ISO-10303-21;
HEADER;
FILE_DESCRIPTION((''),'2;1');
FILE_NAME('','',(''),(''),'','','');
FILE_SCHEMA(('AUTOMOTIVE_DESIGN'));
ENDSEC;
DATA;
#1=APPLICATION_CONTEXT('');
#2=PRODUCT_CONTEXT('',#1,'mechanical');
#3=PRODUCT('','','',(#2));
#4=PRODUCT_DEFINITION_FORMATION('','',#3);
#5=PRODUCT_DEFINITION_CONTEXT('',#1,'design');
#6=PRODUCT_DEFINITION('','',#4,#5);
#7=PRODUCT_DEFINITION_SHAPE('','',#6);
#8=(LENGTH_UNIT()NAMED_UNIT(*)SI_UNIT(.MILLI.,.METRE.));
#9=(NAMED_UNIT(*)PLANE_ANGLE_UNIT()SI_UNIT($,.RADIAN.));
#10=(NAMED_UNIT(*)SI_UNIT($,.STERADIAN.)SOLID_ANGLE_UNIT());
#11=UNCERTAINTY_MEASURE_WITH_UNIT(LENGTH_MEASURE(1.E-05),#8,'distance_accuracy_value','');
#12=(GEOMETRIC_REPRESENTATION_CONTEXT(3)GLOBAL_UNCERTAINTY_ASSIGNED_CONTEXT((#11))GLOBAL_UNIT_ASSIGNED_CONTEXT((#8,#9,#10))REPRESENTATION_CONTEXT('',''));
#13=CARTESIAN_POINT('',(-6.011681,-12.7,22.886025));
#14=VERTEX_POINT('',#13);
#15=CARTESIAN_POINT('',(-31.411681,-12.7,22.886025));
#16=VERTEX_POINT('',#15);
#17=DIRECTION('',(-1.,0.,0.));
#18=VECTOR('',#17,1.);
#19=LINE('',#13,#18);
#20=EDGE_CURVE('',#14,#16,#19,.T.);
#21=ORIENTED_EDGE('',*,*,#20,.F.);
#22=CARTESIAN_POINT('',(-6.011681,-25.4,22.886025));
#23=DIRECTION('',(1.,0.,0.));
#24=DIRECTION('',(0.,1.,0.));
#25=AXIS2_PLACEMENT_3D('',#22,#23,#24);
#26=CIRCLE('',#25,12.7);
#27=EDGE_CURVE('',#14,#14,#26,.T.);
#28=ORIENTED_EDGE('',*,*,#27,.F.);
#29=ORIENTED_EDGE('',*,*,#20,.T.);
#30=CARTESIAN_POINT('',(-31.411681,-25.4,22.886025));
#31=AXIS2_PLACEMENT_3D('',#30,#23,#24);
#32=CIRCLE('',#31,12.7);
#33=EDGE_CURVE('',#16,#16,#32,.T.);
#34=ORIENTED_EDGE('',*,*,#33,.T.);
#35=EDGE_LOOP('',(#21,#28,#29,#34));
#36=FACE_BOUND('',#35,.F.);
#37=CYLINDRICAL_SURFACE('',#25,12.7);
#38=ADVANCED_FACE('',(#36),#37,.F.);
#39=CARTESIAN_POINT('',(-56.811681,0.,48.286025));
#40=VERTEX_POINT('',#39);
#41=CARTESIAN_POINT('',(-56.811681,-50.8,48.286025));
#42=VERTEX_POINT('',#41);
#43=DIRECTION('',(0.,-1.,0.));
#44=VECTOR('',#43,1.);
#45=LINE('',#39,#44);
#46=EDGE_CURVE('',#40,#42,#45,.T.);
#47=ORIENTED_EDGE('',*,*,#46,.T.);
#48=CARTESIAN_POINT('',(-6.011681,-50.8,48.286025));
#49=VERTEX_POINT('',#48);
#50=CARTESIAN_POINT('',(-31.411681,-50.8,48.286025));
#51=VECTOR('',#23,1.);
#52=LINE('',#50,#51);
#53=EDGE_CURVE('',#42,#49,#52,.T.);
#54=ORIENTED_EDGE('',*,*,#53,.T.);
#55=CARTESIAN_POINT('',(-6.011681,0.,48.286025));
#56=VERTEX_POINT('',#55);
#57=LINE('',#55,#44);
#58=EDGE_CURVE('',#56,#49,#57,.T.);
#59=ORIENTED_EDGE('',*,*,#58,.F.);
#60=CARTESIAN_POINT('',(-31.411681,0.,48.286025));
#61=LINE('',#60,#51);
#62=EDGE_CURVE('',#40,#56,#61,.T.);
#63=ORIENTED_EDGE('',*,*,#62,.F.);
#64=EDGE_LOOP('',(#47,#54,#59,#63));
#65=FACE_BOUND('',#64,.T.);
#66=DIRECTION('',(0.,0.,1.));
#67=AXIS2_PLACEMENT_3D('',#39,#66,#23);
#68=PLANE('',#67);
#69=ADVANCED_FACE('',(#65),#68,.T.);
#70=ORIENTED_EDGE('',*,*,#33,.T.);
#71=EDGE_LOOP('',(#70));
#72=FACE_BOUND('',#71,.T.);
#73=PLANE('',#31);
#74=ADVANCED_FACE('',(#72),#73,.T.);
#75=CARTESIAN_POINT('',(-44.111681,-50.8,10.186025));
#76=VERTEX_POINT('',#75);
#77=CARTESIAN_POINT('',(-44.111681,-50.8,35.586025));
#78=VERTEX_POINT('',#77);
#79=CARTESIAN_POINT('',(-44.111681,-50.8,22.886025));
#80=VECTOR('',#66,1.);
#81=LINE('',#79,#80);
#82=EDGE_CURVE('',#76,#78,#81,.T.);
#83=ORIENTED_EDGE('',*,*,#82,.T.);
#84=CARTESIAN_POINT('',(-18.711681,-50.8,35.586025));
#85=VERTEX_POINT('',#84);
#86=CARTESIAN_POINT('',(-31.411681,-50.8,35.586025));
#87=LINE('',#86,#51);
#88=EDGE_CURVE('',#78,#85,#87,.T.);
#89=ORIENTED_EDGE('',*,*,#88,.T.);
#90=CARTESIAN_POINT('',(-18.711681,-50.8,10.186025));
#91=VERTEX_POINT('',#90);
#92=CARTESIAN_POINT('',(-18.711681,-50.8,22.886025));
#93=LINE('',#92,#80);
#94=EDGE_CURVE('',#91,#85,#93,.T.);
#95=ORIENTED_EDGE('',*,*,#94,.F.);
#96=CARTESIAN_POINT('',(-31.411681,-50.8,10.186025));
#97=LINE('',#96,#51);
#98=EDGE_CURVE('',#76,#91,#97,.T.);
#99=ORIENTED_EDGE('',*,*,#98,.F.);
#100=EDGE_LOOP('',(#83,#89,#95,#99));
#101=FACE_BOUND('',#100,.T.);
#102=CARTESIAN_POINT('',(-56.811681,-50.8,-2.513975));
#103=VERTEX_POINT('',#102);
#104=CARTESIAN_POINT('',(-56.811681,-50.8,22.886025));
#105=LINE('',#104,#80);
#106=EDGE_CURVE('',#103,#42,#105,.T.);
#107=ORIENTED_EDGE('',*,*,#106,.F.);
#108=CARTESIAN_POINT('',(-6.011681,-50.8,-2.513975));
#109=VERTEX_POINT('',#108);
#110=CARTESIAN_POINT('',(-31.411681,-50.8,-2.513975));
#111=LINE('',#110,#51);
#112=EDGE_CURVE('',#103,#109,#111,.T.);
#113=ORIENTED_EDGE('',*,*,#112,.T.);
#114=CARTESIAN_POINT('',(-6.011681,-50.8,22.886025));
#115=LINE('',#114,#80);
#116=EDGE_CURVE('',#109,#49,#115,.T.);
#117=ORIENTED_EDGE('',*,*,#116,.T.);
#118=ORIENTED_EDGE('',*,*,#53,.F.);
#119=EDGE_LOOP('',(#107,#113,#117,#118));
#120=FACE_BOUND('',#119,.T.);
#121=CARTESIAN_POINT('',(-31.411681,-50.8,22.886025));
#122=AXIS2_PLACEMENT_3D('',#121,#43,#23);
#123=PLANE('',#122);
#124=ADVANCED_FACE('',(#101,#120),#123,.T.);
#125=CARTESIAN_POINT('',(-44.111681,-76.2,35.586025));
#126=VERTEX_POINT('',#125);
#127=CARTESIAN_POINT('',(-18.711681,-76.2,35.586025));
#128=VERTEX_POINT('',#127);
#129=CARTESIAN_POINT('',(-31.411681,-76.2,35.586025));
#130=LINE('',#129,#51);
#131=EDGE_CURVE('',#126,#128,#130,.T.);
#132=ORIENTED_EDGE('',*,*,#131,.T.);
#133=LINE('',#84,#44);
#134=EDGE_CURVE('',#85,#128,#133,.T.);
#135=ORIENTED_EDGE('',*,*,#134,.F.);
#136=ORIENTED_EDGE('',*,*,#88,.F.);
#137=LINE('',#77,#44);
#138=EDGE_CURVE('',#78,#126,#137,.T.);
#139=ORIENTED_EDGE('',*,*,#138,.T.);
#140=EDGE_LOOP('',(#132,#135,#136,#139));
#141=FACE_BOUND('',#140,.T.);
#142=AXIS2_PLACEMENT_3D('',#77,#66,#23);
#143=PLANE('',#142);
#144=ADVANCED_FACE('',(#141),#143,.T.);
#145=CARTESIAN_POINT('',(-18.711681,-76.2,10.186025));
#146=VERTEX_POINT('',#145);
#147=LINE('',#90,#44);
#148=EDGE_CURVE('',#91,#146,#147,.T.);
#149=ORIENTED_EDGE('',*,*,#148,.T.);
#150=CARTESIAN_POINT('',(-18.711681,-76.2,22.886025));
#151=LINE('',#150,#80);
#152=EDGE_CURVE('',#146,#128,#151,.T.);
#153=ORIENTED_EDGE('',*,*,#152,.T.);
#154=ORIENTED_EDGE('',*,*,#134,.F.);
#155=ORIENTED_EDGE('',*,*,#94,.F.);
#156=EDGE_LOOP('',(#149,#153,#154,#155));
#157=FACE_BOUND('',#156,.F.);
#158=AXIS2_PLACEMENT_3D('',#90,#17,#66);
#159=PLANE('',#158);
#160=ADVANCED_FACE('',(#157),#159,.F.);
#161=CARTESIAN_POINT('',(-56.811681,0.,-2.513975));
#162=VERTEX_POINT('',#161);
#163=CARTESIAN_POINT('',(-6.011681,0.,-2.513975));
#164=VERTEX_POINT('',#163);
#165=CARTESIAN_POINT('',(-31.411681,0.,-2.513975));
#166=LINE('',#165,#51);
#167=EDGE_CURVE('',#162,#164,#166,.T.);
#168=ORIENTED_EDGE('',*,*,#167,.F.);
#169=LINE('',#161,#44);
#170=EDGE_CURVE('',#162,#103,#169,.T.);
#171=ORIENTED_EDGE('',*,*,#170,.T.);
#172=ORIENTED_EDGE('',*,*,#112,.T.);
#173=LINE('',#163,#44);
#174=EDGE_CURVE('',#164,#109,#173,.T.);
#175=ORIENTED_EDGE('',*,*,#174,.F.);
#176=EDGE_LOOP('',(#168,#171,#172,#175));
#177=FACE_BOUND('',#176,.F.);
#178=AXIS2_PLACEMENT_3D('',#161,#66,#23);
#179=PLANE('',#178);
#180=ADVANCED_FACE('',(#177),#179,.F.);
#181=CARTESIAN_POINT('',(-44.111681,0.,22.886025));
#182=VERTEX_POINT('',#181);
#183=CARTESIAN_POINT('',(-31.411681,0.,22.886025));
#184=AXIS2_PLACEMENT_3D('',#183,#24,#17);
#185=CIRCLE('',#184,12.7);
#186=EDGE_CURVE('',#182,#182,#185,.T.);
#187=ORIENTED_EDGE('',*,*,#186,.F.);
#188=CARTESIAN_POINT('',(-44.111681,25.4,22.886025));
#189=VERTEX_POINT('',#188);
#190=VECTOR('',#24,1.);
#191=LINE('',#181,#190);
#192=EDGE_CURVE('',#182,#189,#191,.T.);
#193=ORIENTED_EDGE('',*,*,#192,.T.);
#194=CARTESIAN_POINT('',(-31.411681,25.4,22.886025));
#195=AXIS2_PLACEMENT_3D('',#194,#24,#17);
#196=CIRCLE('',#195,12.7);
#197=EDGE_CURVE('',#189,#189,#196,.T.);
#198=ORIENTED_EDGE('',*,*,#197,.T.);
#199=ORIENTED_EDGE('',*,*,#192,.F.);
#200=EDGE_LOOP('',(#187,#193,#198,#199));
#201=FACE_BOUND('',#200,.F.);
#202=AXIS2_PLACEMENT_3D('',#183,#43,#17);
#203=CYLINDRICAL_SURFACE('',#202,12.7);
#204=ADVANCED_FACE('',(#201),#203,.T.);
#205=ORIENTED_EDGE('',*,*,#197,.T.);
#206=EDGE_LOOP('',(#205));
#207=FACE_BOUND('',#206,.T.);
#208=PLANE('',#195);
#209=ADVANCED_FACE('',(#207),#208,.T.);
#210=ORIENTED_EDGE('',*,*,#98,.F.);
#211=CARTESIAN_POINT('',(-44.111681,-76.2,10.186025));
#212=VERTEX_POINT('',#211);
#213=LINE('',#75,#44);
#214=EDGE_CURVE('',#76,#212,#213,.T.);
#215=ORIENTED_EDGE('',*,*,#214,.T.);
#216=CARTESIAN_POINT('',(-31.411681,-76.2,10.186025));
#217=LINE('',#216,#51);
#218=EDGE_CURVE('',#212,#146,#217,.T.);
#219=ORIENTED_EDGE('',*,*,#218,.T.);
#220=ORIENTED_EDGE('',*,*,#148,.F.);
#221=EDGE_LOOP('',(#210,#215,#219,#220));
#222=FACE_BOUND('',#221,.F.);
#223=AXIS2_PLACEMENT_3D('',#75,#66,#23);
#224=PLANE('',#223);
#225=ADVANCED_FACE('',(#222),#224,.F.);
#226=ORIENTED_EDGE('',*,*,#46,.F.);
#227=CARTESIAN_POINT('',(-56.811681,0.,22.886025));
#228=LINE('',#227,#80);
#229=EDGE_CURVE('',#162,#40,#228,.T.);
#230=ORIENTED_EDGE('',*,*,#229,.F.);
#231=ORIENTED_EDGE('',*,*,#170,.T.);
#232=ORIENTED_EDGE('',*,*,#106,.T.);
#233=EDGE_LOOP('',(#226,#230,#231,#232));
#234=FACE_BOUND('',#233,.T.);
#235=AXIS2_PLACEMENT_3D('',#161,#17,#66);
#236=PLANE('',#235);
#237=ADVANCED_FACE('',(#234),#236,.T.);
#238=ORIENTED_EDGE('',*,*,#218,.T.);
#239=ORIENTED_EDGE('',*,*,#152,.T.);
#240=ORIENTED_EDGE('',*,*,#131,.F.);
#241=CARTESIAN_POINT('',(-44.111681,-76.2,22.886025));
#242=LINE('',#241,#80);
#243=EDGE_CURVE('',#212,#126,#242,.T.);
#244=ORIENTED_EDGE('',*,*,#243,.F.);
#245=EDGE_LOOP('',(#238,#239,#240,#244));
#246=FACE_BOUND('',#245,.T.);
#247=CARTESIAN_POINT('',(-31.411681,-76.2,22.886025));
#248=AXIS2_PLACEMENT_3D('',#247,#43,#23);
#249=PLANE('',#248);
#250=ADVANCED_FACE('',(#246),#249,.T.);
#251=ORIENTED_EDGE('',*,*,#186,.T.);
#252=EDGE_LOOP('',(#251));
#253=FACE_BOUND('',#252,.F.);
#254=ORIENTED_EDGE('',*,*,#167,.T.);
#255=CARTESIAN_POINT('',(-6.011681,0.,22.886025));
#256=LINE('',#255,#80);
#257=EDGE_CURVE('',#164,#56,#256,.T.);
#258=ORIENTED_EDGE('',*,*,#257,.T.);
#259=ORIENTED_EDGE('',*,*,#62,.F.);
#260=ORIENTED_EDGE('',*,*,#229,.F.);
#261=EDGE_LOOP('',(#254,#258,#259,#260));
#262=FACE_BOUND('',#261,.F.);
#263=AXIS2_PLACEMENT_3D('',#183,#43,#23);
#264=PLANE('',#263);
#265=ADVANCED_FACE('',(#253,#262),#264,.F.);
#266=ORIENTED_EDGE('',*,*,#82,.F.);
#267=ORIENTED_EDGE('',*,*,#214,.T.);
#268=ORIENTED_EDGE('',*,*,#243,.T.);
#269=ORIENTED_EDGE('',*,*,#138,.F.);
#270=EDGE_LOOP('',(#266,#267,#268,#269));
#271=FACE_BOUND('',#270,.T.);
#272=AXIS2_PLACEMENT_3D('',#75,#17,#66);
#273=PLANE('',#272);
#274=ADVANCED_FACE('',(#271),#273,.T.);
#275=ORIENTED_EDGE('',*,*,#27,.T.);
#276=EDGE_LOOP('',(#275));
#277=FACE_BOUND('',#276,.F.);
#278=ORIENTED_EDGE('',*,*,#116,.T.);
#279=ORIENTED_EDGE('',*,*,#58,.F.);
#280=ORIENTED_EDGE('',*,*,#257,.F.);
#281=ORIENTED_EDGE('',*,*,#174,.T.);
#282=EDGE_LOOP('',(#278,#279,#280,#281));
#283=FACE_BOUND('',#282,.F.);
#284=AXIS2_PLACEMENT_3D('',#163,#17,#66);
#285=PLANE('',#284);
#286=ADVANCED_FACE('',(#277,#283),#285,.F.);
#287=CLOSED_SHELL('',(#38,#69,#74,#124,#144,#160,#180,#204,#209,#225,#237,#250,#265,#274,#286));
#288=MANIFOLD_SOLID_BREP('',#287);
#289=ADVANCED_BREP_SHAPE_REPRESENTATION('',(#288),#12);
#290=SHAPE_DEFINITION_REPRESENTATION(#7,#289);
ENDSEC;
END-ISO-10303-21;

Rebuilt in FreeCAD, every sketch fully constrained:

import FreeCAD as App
import Part
import Sketcher
Q = App.Units.Quantity

doc = App.newDocument("Part")
body = doc.addObject("PartDesign::Body", "Body")

sketch1 = body.newObject("Sketcher::SketchObject", "Sketch")
sketch1.AttachmentSupport = (doc.getObject("XZ_Plane"), [""])
sketch1.MapMode = "FlatFace"
sketch1.addGeometry(Part.LineSegment(App.Vector(-57, 48, 0), App.Vector(-57, -3, 0)), False)
sketch1.addGeometry(Part.LineSegment(App.Vector(-57, -3, 0), App.Vector(-6, -3, 0)), False)
sketch1.addGeometry(Part.LineSegment(App.Vector(-6, -3, 0), App.Vector(-6, 48, 0)), False)
sketch1.addGeometry(Part.LineSegment(App.Vector(-6, 48, 0), App.Vector(-57, 48, 0)), False)
sketch1.addConstraint(Sketcher.Constraint("Coincident", 0, 2, 1, 1))
sketch1.addConstraint(Sketcher.Constraint("Coincident", 1, 2, 2, 1))
sketch1.addConstraint(Sketcher.Constraint("Coincident", 2, 2, 3, 1))
sketch1.addConstraint(Sketcher.Constraint("Coincident", 3, 2, 0, 1))
sketch1.addConstraint(Sketcher.Constraint("Vertical", 0))
sketch1.addConstraint(Sketcher.Constraint("Horizontal", 1))
sketch1.addConstraint(Sketcher.Constraint("Vertical", 2))
sketch1.addConstraint(Sketcher.Constraint("Horizontal", 3))
sketch1.addConstraint(Sketcher.Constraint("Equal", 3, 0))
sketch1.addConstraint(Sketcher.Constraint("DistanceX", 1, 1, 1, 2, Q("2 in")))
sketch1.addConstraint(Sketcher.Constraint("DistanceX", 0, 2, -1, 1, Q("56.811681 mm")))
sketch1.addConstraint(Sketcher.Constraint("DistanceY", 0, 2, -1, 1, Q("2.513975 mm")))
pad1 = body.newObject("PartDesign::Pad", "Pad")
pad1.Profile = sketch1
pad1.Length = Q("2 in")

sketch2 = body.newObject("Sketcher::SketchObject", "Sketch001")
sketch2.AttachmentSupport = (doc.getObject("XZ_Plane"), [""])
sketch2.MapMode = "FlatFace"
sketch2.AttachmentOffset = App.Placement(App.Vector(0, 0, 2 * 25.4), App.Rotation())
sketch2.addGeometry(Part.LineSegment(App.Vector(-44, 36, 0), App.Vector(-44, 10, 0)), False)
sketch2.addGeometry(Part.LineSegment(App.Vector(-44, 10, 0), App.Vector(-19, 10, 0)), False)
sketch2.addGeometry(Part.LineSegment(App.Vector(-19, 10, 0), App.Vector(-19, 36, 0)), False)
sketch2.addGeometry(Part.LineSegment(App.Vector(-19, 36, 0), App.Vector(-44, 36, 0)), False)
sketch2.addConstraint(Sketcher.Constraint("Coincident", 0, 2, 1, 1))
sketch2.addConstraint(Sketcher.Constraint("Coincident", 1, 2, 2, 1))
sketch2.addConstraint(Sketcher.Constraint("Coincident", 2, 2, 3, 1))
sketch2.addConstraint(Sketcher.Constraint("Coincident", 3, 2, 0, 1))
sketch2.addConstraint(Sketcher.Constraint("Vertical", 0))
sketch2.addConstraint(Sketcher.Constraint("Horizontal", 1))
sketch2.addConstraint(Sketcher.Constraint("Vertical", 2))
sketch2.addConstraint(Sketcher.Constraint("Horizontal", 3))
sketch2.addConstraint(Sketcher.Constraint("Equal", 3, 0))
sketch2.addConstraint(Sketcher.Constraint("DistanceX", 1, 1, 1, 2, Q("1 in")))
sketch2.addConstraint(Sketcher.Constraint("DistanceX", 0, 2, -1, 1, Q("44.111681 mm")))
sketch2.addConstraint(Sketcher.Constraint("DistanceY", -1, 1, 0, 2, Q("10.186025 mm")))
pad2 = body.newObject("PartDesign::Pad", "Pad001")
pad2.Profile = sketch2
pad2.Length = Q("1 in")

sketch3 = body.newObject("Sketcher::SketchObject", "Sketch002")
sketch3.AttachmentSupport = (doc.getObject("YZ_Plane"), [""])
sketch3.MapMode = "FlatFace"
sketch3.AttachmentOffset = App.Placement(App.Vector(0, 0, -6.011681), App.Rotation())
sketch3.addGeometry(Part.Circle(App.Vector(-25, 23, 0), App.Vector(0, 0, 1), 13), False)
sketch3.addConstraint(Sketcher.Constraint("Diameter", 0, Q("1 in")))
sketch3.addConstraint(Sketcher.Constraint("DistanceX", 0, 3, -1, 1, Q("1 in")))
sketch3.addConstraint(Sketcher.Constraint("DistanceY", -1, 1, 0, 3, Q("22.886025 mm")))
pocket1 = body.newObject("PartDesign::Pocket", "Pocket")
pocket1.Profile = sketch3
pocket1.Length = Q("1 in")

sketch4 = body.newObject("Sketcher::SketchObject", "Sketch003")
sketch4.AttachmentSupport = (doc.getObject("XZ_Plane"), [""])
sketch4.MapMode = "FlatFace"
sketch4.addGeometry(Part.Circle(App.Vector(-31, 23, 0), App.Vector(0, 0, 1), 13), False)
sketch4.addConstraint(Sketcher.Constraint("Diameter", 0, Q("1 in")))
sketch4.addConstraint(Sketcher.Constraint("DistanceX", 0, 3, -1, 1, Q("31.411681 mm")))
sketch4.addConstraint(Sketcher.Constraint("DistanceY", -1, 1, 0, 3, Q("22.886025 mm")))
pad3 = body.newObject("PartDesign::Pad", "Pad002")
pad3.Profile = sketch4
pad3.Length = Q("1 in")
pad3.Reversed = True

doc.recompute()
